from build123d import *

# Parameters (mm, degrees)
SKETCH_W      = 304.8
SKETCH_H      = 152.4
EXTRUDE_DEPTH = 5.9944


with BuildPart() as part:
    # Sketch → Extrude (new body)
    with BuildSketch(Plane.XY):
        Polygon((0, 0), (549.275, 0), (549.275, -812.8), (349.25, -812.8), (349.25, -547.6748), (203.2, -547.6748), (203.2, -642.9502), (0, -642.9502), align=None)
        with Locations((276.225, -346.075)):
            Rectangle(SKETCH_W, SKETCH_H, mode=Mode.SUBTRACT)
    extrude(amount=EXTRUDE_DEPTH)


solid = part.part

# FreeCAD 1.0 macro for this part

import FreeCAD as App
import Part
import Sketcher
from FreeCAD import Vector
Q = App.Units.Quantity

doc = App.newDocument("Part")
params = doc.addObject("Spreadsheet::Sheet", "Params")
for row, (alias, value) in enumerate([
    ("sketch1_width", "8 in"),
    ("sketch1_width2", "12 in"),
    ("sketch1_height", "32 in"),
    ("sketch1_height2", "6 in"),
    ("sketch1_width3", "5.75 in"),
    ("pad1_length", "0.236 in"),
], start=1):
    params.set(f"A{row}", alias)
    params.set(f"B{row}", "=" + value)
    params.setAlias(f"B{row}", alias)

body = doc.addObject("PartDesign::Body", "Body")

sketch1 = doc.addObject("Sketcher::SketchObject", "Sketch")
body.addObject(sketch1)
sketch1.AttachmentSupport = (doc.XY_Plane, [""])
sketch1.MapMode = "FlatFace"
sketch1.addGeometry([
    Part.LineSegment(Vector(549.275, 0, 0), Vector(0, 0, 0)),
    Part.LineSegment(Vector(0, 0, 0), Vector(0, -642.9502, 0)),
    Part.LineSegment(Vector(0, -642.9502, 0), Vector(203.2, -642.9502, 0)),
    Part.LineSegment(Vector(203.2, -642.9502, 0), Vector(203.2, -547.6748, 0)),
    Part.LineSegment(Vector(203.2, -547.6748, 0), Vector(349.25, -547.6748, 0)),
    Part.LineSegment(Vector(349.25, -547.6748, 0), Vector(349.25, -812.8, 0)),
    Part.LineSegment(Vector(349.25, -812.8, 0), Vector(549.275, -812.8, 0)),
    Part.LineSegment(Vector(549.275, -812.8, 0), Vector(549.275, 0, 0)),
    Part.LineSegment(Vector(123.825, -422.275, 0), Vector(123.825, -269.875, 0)),
    Part.LineSegment(Vector(123.825, -269.875, 0), Vector(428.625, -269.875, 0)),
    Part.LineSegment(Vector(428.625, -269.875, 0), Vector(428.625, -422.275, 0)),
    Part.LineSegment(Vector(428.625, -422.275, 0), Vector(123.825, -422.275, 0)),
], False)
sketch1.addConstraint([
    Sketcher.Constraint("Coincident", 0, 2, 1, 1),
    Sketcher.Constraint("Coincident", 1, 2, 2, 1),
    Sketcher.Constraint("Coincident", 2, 2, 3, 1),
    Sketcher.Constraint("Coincident", 3, 2, 4, 1),
    Sketcher.Constraint("Coincident", 4, 2, 5, 1),
    Sketcher.Constraint("Coincident", 5, 2, 6, 1),
    Sketcher.Constraint("Coincident", 6, 2, 7, 1),
    Sketcher.Constraint("Coincident", 7, 2, 0, 1),
    Sketcher.Constraint("Coincident", 8, 2, 9, 1),
    Sketcher.Constraint("Coincident", 9, 2, 10, 1),
    Sketcher.Constraint("Coincident", 10, 2, 11, 1),
    Sketcher.Constraint("Coincident", 11, 2, 8, 1),
    Sketcher.Constraint("Horizontal", 0),
    Sketcher.Constraint("Vertical", 1),
    Sketcher.Constraint("Horizontal", 2),
    Sketcher.Constraint("Vertical", 3),
    Sketcher.Constraint("Horizontal", 4),
    Sketcher.Constraint("Vertical", 5),
    Sketcher.Constraint("Horizontal", 6),
    Sketcher.Constraint("Vertical", 7),
    Sketcher.Constraint("Vertical", 8),
    Sketcher.Constraint("Horizontal", 9),
    Sketcher.Constraint("Vertical", 10),
    Sketcher.Constraint("Horizontal", 11),
    Sketcher.Constraint("Coincident", 0, 2, -1, 1),
    Sketcher.Constraint("DistanceX", 2, 1, 2, 2, Q("8 in")),
    Sketcher.Constraint("DistanceX", 9, 1, 9, 2, Q("12 in")),
    Sketcher.Constraint("DistanceY", 7, 1, 7, 2, Q("32 in")),
    Sketcher.Constraint("DistanceY", 8, 1, 8, 2, Q("6 in")),
    Sketcher.Constraint("DistanceX", 4, 1, 4, 2, Q("5.75 in")),
    Sketcher.Constraint("DistanceX", 0, 2, 0, 1, Q("21.625 in")),
    Sketcher.Constraint("DistanceY", 1, 2, 1, 1, Q("25.313 in")),
    Sketcher.Constraint("DistanceY", 3, 1, 3, 2, Q("3.751 in")),
    Sketcher.Constraint("DistanceX", 9, 2, 7, 2, Q("4.75 in")),
    Sketcher.Constraint("DistanceY", 8, 2, -1, 1, Q("10.625 in")),
])
sketch1.setExpression("Constraints[25]", "Params.sketch1_width")
sketch1.setExpression("Constraints[26]", "Params.sketch1_width2")
sketch1.setExpression("Constraints[27]", "Params.sketch1_height")
sketch1.setExpression("Constraints[28]", "Params.sketch1_height2")
sketch1.setExpression("Constraints[29]", "Params.sketch1_width3")
pad1 = doc.addObject("PartDesign::Pad", "Pad")
body.addObject(pad1)
pad1.Profile = sketch1
pad1.setExpression("Length", "Params.pad1_length")

doc.recompute()
